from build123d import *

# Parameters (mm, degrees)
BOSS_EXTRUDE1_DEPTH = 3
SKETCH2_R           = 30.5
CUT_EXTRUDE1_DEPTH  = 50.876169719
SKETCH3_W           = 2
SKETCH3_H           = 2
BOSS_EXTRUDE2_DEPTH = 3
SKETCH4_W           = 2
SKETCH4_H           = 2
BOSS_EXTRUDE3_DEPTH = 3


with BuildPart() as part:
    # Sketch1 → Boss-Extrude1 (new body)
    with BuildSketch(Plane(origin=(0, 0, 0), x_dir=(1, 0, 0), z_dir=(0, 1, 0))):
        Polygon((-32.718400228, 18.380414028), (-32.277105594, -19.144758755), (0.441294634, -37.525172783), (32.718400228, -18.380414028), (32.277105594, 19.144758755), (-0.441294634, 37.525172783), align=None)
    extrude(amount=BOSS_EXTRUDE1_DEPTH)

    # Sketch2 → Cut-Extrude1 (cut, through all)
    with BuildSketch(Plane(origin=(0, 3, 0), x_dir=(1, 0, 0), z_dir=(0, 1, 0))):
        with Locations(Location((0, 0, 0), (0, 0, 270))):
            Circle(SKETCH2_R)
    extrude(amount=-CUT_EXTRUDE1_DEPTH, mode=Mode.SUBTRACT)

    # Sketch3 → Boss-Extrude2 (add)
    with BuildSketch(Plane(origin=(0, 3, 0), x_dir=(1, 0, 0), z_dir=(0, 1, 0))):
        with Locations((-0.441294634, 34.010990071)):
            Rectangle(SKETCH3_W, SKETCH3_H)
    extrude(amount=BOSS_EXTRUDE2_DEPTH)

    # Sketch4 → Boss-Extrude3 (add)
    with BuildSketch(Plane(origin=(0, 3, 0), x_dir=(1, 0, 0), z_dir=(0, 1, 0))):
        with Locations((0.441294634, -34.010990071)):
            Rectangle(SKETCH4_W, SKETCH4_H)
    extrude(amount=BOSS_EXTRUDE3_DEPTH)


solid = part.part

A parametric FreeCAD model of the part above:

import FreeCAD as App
import Part
import Sketcher
from FreeCAD import Vector
Q = App.Units.Quantity

doc = App.newDocument("Part")
params = doc.addObject("Spreadsheet::Sheet", "Params")
for row, (alias, value) in enumerate([
    ("pad1_length", "3 mm"),
    ("sketch2_diameter", "61 mm"),
    ("sketch3_width", "2 mm"),
    ("pad2_length", "3 mm"),
    ("sketch4_width", "2 mm"),
    ("pad3_length", "3 mm"),
], start=1):
    params.set(f"A{row}", alias)
    params.set(f"B{row}", "=" + value)
    params.setAlias(f"B{row}", alias)

body = doc.addObject("PartDesign::Body", "Body")

# Sketch on XZ plane
sketch1 = body.newObject("Sketcher::SketchObject", "Sketch")
sketch1.AttachmentSupport = (doc.getObject("XZ_Plane"), [""])
sketch1.MapMode = "FlatFace"
sketch1.addGeometry([
    Part.LineSegment(Vector(-33, -18, 0), Vector(-32, 19, 0)),  # 0
    Part.LineSegment(Vector(-32, 19, 0), Vector(0, 38, 0)),  # 1
    Part.LineSegment(Vector(0, 38, 0), Vector(33, 18, 0)),  # 2
    Part.LineSegment(Vector(33, 18, 0), Vector(32, -19, 0)),  # 3
    Part.LineSegment(Vector(32, -19, 0), Vector(0, -38, 0)),  # 4
    Part.LineSegment(Vector(0, -38, 0), Vector(-33, -18, 0)),  # 5
], False)
sketch1.addConstraint([
    Sketcher.Constraint("Coincident", 0, 2, 1, 1),
    Sketcher.Constraint("Coincident", 1, 2, 2, 1),
    Sketcher.Constraint("Coincident", 2, 2, 3, 1),
    Sketcher.Constraint("Coincident", 3, 2, 4, 1),
    Sketcher.Constraint("Coincident", 4, 2, 5, 1),
    Sketcher.Constraint("Coincident", 5, 2, 0, 1),
    Sketcher.Constraint("Symmetric", 0, 2, 3, 2, -1, 1),
    Sketcher.Constraint("Symmetric", 1, 2, 4, 2, -1, 1),
    Sketcher.Constraint("Symmetric", 2, 2, 5, 2, -1, 1),
    Sketcher.Constraint("Equal", 0, 1),
    Sketcher.Constraint("Equal", 1, 2),
    Sketcher.Constraint("DistanceX", -1, 1, 2, 2, Q("32.7184 mm")),
    Sketcher.Constraint("DistanceX", 0, 2, 1, 2, Q("32.7184 mm")),
    Sketcher.Constraint("DistanceY", -1, 1, 0, 2, Q("19.144759 mm")),
    Sketcher.Constraint("DistanceY", 2, 2, 1, 2, Q("19.144759 mm")),
])
pad1 = body.newObject("PartDesign::Pad", "Pad")
pad1.Profile = sketch1
pad1.setExpression("Length", "Params.pad1_length")
pad1.Reversed = True

# Sketch on XZ plane
sketch2 = body.newObject("Sketcher::SketchObject", "Sketch001")
sketch2.AttachmentSupport = (doc.getObject("XZ_Plane"), [""])
sketch2.MapMode = "FlatFace"
sketch2.AttachmentOffset = App.Placement(Vector(0, 0, -3), App.Rotation())
sketch2.addGeometry(Part.Circle(Vector(0, 0, 0), Vector(0, 0, 1), 30), False)
sketch2.addConstraint([
    Sketcher.Constraint("Coincident", 0, 3, -1, 1),
    Sketcher.Constraint("Diameter", 0, Q("61 mm")),
])
sketch2.setExpression("Constraints[1]", "Params.sketch2_diameter")
pocket1 = body.newObject("PartDesign::Pocket", "Pocket")
pocket1.Profile = sketch2
pocket1.Type = "ThroughAll"
pocket1.Reversed = True

# Sketch on XZ plane
sketch3 = body.newObject("Sketcher::SketchObject", "Sketch002")
sketch3.AttachmentSupport = (doc.getObject("XZ_Plane"), [""])
sketch3.MapMode = "FlatFace"
sketch3.AttachmentOffset = App.Placement(Vector(0, 0, -3), App.Rotation())
sketch3.addGeometry([
    Part.LineSegment(Vector(-1.4, -35, 0), Vector(-1.4, -33, 0)),
    Part.LineSegment(Vector(-1.4, -33, 0), Vector(0.6, -33, 0)),
    Part.LineSegment(Vector(0.6, -33, 0), Vector(0.6, -35, 0)),
    Part.LineSegment(Vector(0.6, -35, 0), Vector(-1.4, -35, 0)),
], False)
sketch3.addConstraint([
    Sketcher.Constraint("Coincident", 0, 2, 1, 1),
    Sketcher.Constraint("Coincident", 1, 2, 2, 1),
    Sketcher.Constraint("Coincident", 2, 2, 3, 1),
    Sketcher.Constraint("Coincident", 3, 2, 0, 1),
    Sketcher.Constraint("Vertical", 0),
    Sketcher.Constraint("Horizontal", 1),
    Sketcher.Constraint("Vertical", 2),
    Sketcher.Constraint("Horizontal", 3),
    Sketcher.Constraint("Equal", 3, 0),
    Sketcher.Constraint("DistanceX", 1, 1, 1, 2, Q("2 mm")),
    Sketcher.Constraint("DistanceY", 0, 2, -1, 1, Q("33.01099 mm")),
    Sketcher.Constraint("DistanceX", 0, 2, -1, 1, Q("1.441295 mm")),
])
sketch3.setExpression("Constraints[9]", "Params.sketch3_width")
pad2 = body.newObject("PartDesign::Pad", "Pad001")
pad2.Profile = sketch3
pad2.setExpression("Length", "Params.pad2_length")
pad2.Reversed = True

# Sketch on XZ plane
sketch4 = body.newObject("Sketcher::SketchObject", "Sketch003")
sketch4.AttachmentSupport = (doc.getObject("XZ_Plane"), [""])
sketch4.MapMode = "FlatFace"
sketch4.AttachmentOffset = App.Placement(Vector(0, 0, -3), App.Rotation())
sketch4.addGeometry([
    Part.LineSegment(Vector(-0.6, 33, 0), Vector(-0.6, 35, 0)),
    Part.LineSegment(Vector(-0.6, 35, 0), Vector(1.4, 35, 0)),
    Part.LineSegment(Vector(1.4, 35, 0), Vector(1.4, 33, 0)),
    Part.LineSegment(Vector(1.4, 33, 0), Vector(-0.6, 33, 0)),
], False)
sketch4.addConstraint([
    Sketcher.Constraint("Coincident", 0, 2, 1, 1),
    Sketcher.Constraint("Coincident", 1, 2, 2, 1),
    Sketcher.Constraint("Coincident", 2, 2, 3, 1),
    Sketcher.Constraint("Coincident", 3, 2, 0, 1),
    Sketcher.Constraint("Vertical", 0),
    Sketcher.Constraint("Horizontal", 1),
    Sketcher.Constraint("Vertical", 2),
    Sketcher.Constraint("Horizontal", 3),
    Sketcher.Constraint("Equal", 3, 0),
    Sketcher.Constraint("DistanceX", 1, 1, 1, 2, Q("2 mm")),
    Sketcher.Constraint("DistanceY", -1, 1, 0, 2, Q("35.01099 mm")),
    Sketcher.Constraint("DistanceX", 0, 2, -1, 1, Q("0.558705 mm")),
])
sketch4.setExpression("Constraints[9]", "Params.sketch4_width")
pad3 = body.newObject("PartDesign::Pad", "Pad002")
pad3.Profile = sketch4
pad3.setExpression("Length", "Params.pad3_length")
pad3.Reversed = True

doc.recompute()
